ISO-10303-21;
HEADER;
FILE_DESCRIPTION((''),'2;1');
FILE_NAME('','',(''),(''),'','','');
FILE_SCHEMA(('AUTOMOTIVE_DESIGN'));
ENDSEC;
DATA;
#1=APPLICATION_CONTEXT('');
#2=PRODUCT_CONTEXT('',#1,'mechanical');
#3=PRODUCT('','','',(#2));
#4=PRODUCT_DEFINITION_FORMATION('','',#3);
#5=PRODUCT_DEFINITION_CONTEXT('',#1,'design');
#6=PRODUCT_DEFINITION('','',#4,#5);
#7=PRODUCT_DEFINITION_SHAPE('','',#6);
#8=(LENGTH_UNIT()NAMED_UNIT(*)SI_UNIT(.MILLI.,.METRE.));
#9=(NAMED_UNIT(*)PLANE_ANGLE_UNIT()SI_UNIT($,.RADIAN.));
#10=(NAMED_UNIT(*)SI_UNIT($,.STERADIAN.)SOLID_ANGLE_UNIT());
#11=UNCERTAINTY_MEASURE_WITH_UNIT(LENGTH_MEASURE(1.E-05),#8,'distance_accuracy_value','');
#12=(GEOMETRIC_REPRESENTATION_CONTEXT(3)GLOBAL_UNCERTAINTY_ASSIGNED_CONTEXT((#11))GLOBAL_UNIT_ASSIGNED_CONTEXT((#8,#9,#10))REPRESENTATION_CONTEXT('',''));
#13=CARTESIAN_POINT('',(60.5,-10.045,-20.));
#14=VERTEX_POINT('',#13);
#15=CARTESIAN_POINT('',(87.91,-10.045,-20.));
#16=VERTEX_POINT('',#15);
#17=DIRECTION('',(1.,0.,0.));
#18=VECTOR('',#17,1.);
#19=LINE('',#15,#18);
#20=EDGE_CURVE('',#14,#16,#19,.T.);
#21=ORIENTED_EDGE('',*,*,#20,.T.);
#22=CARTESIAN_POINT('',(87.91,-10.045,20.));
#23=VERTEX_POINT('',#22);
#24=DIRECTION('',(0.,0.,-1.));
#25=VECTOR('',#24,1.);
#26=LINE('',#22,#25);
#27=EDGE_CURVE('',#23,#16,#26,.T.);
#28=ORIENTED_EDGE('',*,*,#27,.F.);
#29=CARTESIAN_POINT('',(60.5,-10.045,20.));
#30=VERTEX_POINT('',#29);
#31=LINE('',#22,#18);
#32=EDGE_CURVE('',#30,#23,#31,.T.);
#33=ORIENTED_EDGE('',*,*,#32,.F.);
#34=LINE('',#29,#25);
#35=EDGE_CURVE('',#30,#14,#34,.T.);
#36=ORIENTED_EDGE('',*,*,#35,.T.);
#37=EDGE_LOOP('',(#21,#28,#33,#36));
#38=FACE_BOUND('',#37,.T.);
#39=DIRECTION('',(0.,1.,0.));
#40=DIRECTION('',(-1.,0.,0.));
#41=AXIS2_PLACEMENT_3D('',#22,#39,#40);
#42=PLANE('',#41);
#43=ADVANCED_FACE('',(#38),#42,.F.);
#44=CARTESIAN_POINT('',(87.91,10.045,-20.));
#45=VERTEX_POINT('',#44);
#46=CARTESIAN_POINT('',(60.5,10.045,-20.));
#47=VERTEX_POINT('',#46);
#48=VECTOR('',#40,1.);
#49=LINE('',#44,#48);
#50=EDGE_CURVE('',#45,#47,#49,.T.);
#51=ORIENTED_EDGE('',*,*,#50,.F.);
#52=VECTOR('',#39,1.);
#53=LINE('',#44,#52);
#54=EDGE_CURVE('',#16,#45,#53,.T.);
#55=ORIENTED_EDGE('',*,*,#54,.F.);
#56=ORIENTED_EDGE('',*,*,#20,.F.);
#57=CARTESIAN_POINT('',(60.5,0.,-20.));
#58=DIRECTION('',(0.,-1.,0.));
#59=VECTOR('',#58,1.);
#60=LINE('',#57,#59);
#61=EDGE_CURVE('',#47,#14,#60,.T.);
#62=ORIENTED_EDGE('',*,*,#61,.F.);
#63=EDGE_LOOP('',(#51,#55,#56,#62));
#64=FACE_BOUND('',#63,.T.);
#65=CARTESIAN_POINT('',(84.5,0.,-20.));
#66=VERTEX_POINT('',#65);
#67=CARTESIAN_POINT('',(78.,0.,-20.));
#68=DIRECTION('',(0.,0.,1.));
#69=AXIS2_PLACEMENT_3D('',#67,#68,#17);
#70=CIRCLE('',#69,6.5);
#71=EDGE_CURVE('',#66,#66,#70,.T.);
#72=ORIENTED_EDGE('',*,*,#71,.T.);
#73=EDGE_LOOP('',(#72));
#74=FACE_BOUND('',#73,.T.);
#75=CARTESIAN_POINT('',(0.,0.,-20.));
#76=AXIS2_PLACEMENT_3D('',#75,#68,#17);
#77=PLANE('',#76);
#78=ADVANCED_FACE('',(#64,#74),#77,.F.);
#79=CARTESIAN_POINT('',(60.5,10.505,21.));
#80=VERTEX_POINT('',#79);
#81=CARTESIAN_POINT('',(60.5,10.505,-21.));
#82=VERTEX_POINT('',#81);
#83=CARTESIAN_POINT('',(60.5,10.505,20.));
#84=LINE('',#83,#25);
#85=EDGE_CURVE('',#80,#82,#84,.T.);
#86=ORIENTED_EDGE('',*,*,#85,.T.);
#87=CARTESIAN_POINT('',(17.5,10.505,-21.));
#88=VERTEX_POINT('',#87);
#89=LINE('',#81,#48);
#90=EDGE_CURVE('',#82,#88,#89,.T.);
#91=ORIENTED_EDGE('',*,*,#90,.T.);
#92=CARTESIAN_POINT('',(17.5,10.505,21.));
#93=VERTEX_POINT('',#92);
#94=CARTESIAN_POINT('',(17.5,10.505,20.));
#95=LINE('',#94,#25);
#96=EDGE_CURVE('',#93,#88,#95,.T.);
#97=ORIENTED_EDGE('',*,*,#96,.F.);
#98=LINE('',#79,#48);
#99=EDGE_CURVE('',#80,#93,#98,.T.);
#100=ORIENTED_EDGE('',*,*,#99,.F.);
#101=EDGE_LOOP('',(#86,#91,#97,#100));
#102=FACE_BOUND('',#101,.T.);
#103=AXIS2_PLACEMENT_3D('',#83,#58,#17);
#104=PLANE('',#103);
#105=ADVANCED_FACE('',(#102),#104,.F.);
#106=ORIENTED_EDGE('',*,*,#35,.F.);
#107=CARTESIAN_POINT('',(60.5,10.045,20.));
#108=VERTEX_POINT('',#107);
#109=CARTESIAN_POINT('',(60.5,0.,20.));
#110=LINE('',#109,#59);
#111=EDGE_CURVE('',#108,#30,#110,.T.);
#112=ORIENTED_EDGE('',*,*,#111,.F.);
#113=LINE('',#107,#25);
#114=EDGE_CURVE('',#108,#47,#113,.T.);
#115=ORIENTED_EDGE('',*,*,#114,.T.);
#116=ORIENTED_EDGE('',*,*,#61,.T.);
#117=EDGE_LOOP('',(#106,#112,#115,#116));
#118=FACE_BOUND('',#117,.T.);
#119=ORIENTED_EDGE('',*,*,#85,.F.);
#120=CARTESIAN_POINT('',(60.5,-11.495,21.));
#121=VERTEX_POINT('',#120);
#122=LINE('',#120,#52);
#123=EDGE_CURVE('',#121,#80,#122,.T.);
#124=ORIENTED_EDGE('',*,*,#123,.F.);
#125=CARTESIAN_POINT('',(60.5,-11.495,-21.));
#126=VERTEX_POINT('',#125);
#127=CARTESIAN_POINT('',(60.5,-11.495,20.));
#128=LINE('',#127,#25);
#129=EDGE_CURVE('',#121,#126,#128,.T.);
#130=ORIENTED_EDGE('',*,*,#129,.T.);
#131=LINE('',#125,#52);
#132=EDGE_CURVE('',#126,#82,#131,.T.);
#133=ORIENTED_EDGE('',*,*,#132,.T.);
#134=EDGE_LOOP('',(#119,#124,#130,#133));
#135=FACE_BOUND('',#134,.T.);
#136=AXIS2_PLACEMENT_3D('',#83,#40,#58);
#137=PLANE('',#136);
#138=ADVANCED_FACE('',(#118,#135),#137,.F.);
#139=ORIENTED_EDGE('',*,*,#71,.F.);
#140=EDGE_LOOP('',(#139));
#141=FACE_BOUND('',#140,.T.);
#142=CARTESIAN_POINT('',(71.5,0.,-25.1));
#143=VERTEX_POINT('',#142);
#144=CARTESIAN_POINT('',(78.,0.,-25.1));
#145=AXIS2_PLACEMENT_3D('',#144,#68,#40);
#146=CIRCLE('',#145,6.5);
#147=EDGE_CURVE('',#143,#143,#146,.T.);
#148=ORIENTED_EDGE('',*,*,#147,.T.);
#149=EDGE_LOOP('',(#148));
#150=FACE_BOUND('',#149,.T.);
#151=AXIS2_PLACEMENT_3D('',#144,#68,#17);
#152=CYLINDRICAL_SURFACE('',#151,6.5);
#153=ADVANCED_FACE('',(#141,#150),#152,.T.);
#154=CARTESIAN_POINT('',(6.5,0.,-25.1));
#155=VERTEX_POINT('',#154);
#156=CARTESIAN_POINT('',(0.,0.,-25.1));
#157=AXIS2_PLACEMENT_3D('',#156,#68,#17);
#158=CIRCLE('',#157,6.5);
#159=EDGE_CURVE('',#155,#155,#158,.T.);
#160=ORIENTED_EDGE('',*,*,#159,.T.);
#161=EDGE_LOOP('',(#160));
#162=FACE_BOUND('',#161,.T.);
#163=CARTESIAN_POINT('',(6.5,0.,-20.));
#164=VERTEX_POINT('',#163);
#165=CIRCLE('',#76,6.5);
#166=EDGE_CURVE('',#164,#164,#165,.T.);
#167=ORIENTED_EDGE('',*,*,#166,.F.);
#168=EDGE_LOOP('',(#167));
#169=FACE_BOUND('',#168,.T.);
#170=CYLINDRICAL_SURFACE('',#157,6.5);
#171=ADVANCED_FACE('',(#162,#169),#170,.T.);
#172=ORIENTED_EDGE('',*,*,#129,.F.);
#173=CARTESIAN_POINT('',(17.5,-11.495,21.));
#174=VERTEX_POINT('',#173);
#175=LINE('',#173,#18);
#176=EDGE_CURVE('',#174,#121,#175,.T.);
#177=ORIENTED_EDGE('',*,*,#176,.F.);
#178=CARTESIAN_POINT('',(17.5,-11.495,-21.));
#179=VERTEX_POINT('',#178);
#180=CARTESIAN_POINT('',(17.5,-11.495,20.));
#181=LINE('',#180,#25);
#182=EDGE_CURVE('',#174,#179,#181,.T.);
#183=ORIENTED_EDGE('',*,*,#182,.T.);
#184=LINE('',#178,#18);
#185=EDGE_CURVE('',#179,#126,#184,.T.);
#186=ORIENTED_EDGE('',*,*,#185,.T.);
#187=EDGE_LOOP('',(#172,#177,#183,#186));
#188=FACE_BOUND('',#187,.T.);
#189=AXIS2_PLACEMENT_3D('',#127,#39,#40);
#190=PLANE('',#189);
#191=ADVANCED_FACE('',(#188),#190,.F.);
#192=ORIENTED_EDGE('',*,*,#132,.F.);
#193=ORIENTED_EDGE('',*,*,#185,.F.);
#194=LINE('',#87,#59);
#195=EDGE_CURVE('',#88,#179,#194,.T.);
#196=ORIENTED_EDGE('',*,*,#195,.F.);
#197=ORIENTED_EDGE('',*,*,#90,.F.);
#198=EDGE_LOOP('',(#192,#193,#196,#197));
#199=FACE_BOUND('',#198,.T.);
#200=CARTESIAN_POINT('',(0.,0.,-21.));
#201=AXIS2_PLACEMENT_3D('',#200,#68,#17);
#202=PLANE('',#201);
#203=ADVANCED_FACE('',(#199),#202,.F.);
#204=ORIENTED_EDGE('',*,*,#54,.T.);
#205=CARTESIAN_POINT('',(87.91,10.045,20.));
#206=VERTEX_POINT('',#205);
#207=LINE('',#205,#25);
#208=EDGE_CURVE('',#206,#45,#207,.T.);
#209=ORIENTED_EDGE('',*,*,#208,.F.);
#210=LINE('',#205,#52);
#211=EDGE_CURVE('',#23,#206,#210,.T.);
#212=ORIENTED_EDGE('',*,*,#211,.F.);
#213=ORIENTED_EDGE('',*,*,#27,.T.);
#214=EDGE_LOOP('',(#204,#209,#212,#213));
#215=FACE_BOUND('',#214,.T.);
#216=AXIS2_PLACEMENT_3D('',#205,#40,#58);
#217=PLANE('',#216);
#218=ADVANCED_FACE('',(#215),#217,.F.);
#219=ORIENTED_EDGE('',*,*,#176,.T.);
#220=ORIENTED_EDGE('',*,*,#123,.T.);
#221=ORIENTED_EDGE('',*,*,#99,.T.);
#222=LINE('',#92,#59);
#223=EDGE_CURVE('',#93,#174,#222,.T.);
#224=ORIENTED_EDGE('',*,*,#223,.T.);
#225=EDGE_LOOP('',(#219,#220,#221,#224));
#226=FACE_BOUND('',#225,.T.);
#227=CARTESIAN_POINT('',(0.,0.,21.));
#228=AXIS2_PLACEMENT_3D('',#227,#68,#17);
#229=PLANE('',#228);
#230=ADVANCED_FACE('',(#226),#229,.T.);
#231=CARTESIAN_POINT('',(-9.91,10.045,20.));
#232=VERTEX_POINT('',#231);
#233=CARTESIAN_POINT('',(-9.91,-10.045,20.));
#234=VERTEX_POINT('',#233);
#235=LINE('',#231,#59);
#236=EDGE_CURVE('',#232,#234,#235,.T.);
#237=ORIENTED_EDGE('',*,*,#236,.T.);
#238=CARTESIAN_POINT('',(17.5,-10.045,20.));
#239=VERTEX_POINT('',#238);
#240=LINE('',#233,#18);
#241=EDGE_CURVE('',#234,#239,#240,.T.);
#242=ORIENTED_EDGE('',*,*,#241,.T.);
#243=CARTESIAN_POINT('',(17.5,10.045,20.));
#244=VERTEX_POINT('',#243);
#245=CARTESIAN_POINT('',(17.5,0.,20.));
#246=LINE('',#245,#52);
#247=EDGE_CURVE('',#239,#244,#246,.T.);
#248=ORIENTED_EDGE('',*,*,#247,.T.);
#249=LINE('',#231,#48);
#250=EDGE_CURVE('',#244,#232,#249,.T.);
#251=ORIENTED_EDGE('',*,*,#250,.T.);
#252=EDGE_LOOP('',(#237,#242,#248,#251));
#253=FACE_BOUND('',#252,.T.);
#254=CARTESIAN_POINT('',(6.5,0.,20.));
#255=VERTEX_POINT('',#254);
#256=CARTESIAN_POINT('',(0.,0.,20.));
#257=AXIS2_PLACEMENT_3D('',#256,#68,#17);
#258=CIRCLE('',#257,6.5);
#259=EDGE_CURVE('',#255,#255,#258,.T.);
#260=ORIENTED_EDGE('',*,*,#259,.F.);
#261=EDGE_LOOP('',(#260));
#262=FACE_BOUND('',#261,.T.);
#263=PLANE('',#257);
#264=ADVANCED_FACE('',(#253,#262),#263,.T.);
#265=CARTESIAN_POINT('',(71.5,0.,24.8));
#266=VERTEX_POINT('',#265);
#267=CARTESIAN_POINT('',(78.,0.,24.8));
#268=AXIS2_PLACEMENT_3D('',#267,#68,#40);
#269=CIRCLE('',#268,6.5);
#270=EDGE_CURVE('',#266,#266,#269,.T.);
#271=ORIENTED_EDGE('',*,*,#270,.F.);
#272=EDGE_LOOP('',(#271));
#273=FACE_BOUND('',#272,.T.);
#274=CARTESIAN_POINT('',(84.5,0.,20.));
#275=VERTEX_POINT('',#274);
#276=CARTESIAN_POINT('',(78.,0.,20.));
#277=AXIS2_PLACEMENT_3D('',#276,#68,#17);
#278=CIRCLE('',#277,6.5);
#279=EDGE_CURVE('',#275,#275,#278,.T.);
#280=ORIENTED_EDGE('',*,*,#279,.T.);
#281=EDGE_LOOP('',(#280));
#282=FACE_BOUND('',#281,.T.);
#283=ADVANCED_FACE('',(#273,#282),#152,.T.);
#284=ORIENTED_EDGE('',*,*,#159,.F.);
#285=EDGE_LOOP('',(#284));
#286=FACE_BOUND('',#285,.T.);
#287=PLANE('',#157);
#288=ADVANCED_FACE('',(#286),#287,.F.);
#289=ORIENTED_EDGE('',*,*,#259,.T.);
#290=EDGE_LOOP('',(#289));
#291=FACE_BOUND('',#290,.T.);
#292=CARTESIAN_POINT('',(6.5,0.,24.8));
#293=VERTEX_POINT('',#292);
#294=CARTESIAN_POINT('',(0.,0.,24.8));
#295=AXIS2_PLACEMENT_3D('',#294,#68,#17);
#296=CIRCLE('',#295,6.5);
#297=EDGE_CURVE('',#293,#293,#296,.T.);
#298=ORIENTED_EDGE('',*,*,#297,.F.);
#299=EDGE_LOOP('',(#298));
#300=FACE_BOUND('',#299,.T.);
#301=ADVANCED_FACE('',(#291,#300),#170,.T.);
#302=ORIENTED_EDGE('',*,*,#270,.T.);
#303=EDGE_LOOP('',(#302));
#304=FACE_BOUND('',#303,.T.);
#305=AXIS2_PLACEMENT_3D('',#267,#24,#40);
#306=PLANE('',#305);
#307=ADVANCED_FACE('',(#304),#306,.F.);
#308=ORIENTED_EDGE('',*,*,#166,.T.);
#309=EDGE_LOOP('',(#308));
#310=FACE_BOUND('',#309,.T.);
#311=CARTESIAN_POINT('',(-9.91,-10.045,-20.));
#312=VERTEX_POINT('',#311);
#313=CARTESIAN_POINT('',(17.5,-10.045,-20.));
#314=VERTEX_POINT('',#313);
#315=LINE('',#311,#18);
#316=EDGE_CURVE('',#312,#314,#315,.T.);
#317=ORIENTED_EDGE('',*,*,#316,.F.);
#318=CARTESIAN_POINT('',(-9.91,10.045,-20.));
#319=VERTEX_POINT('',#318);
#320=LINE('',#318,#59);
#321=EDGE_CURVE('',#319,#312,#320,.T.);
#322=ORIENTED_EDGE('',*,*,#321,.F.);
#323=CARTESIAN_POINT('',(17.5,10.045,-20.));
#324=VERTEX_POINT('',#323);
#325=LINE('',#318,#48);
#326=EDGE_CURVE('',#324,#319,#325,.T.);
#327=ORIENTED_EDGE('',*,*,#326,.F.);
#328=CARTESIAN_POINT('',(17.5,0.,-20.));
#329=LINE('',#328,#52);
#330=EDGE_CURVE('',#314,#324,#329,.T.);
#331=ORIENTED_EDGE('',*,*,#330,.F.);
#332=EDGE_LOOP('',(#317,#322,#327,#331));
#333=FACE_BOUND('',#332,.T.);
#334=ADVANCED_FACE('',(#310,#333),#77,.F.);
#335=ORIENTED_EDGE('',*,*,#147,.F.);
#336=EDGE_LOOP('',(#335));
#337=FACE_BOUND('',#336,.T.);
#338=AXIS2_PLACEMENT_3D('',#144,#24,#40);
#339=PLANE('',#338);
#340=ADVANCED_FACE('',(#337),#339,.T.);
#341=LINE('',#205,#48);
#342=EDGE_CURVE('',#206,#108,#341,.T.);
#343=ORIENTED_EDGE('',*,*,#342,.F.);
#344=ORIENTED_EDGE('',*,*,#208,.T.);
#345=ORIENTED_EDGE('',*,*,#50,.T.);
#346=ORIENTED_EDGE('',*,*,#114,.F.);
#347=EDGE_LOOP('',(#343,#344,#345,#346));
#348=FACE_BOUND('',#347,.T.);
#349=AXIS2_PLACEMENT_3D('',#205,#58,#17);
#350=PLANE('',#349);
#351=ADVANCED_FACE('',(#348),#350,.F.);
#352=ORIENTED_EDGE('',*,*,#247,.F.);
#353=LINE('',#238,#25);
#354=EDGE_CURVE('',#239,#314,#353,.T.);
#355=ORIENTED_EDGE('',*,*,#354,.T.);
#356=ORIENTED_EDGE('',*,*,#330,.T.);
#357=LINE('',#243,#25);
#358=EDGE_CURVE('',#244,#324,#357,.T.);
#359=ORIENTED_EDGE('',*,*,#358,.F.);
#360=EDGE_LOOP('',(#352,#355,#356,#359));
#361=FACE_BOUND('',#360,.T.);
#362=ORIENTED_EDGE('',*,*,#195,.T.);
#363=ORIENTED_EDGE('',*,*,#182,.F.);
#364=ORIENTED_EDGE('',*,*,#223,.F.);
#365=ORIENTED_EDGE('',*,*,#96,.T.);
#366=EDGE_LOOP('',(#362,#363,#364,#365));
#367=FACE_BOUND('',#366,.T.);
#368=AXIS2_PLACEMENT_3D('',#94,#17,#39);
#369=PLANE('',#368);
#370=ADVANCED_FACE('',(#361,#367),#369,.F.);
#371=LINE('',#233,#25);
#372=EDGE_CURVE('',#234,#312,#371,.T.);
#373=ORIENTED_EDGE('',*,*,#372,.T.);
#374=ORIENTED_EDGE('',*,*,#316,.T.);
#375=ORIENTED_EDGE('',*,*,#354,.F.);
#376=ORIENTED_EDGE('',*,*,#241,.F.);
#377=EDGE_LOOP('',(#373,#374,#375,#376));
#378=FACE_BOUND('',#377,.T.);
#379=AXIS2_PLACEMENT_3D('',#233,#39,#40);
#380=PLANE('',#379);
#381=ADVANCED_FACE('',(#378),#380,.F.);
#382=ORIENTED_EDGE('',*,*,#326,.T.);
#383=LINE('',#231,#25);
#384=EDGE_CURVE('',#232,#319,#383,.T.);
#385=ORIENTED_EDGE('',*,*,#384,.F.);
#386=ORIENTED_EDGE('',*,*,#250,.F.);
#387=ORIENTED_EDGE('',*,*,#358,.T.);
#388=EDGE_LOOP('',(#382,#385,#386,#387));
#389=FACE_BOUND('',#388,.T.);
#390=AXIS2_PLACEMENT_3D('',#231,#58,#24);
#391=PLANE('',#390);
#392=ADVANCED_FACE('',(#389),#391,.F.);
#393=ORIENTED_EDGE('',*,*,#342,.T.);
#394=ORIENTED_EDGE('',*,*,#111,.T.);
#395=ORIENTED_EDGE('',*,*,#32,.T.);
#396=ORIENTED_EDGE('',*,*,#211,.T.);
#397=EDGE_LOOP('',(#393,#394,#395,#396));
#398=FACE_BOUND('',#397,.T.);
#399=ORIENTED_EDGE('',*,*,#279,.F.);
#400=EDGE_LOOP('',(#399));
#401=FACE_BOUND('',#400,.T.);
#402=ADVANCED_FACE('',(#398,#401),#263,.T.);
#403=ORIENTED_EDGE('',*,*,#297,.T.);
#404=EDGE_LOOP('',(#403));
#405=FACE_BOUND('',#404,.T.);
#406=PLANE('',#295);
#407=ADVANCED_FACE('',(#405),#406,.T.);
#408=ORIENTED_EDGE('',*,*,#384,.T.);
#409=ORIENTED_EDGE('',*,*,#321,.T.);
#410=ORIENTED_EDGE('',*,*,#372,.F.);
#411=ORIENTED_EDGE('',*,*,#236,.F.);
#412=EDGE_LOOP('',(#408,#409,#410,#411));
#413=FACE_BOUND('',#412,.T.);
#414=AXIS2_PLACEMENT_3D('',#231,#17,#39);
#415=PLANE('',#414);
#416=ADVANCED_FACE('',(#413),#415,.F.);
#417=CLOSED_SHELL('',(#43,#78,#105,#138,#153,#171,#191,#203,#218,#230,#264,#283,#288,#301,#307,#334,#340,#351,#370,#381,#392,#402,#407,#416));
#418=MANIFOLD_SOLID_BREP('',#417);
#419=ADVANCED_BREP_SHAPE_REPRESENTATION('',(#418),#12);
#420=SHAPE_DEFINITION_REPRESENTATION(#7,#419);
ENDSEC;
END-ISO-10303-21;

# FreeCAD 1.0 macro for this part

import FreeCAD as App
import Part
import Sketcher
from FreeCAD import Vector
Q = App.Units.Quantity

doc = App.newDocument("Part")
body = doc.addObject("PartDesign::Body", "Body")

# Sketch on XY plane
sketch1 = body.newObject("Sketcher::SketchObject", "Sketch")
sketch1.AttachmentSupport = (doc.getObject("XY_Plane"), [""])
sketch1.MapMode = "FlatFace"
sketch1.addGeometry([
    Part.LineSegment(Vector(17.5, -10.045, 0), Vector(17.5, -11.495, 0)),  # 0
    Part.LineSegment(Vector(17.5, -11.495, 0), Vector(60.5, -11.495, 0)),  # 1
    Part.LineSegment(Vector(60.5, -11.495, 0), Vector(60.5, -10.045, 0)),  # 2
    Part.LineSegment(Vector(60.5, -10.045, 0), Vector(87.91, -10.045, 0)),  # 3
    Part.LineSegment(Vector(87.91, -10.045, 0), Vector(87.91, 10.045, 0)),  # 4
    Part.LineSegment(Vector(87.91, 10.045, 0), Vector(60.5, 10.045, 0)),  # 5
    Part.LineSegment(Vector(60.5, 10.045, 0), Vector(60.5, 10.505, 0)),  # 6
    Part.LineSegment(Vector(60.5, 10.505, 0), Vector(17.5, 10.505, 0)),  # 7
    Part.LineSegment(Vector(17.5, 10.505, 0), Vector(17.5, 10.045, 0)),  # 8
    Part.LineSegment(Vector(17.5, 10.045, 0), Vector(-9.91, 10.045, 0)),  # 9
    Part.LineSegment(Vector(-9.91, 10.045, 0), Vector(-9.91, -10.045, 0)),  # 10
    Part.LineSegment(Vector(-9.91, -10.045, 0), Vector(17.5, -10.045, 0)),  # 11
], False)
sketch1.addConstraint([
    Sketcher.Constraint("Coincident", 0, 2, 1, 1),
    Sketcher.Constraint("Coincident", 1, 2, 2, 1),
    Sketcher.Constraint("Coincident", 2, 2, 3, 1),
    Sketcher.Constraint("Coincident", 3, 2, 4, 1),
    Sketcher.Constraint("Coincident", 4, 2, 5, 1),
    Sketcher.Constraint("Coincident", 5, 2, 6, 1),
    Sketcher.Constraint("Coincident", 6, 2, 7, 1),
    Sketcher.Constraint("Coincident", 7, 2, 8, 1),
    Sketcher.Constraint("Coincident", 8, 2, 9, 1),
    Sketcher.Constraint("Coincident", 9, 2, 10, 1),
    Sketcher.Constraint("Coincident", 10, 2, 11, 1),
    Sketcher.Constraint("Coincident", 11, 2, 0, 1),
    Sketcher.Constraint("Vertical", 0),
    Sketcher.Constraint("Horizontal", 1),
    Sketcher.Constraint("Vertical", 2),
    Sketcher.Constraint("Horizontal", 3),
    Sketcher.Constraint("Vertical", 4),
    Sketcher.Constraint("Horizontal", 5),
    Sketcher.Constraint("Vertical", 6),
    Sketcher.Constraint("Horizontal", 7),
    Sketcher.Constraint("Vertical", 8),
    Sketcher.Constraint("Horizontal", 9),
    Sketcher.Constraint("Vertical", 10),
    Sketcher.Constraint("Horizontal", 11),
    Sketcher.Constraint("Symmetric", 2, 2, 5, 2, -1),
    Sketcher.Constraint("Symmetric", 8, 2, 11, 2, -1),
    Sketcher.Constraint("Horizontal", 5, 2, 8, 2),
    Sketcher.Constraint("Equal", 5, 9),
    Sketcher.Constraint("DistanceX", 1, 1, 1, 2, Q("43 mm")),
    Sketcher.Constraint("DistanceY", 1, 2, 6, 2, Q("22 mm")),
    Sketcher.Constraint("DistanceX", 3, 1, 3, 2, Q("27.41 mm")),
    Sketcher.Constraint("DistanceY", 0, 2, 0, 1, Q("1.45 mm")),
    Sketcher.Constraint("DistanceY", 4, 1, 4, 2, Q("20.09 mm")),
    Sketcher.Constraint("DistanceX", -1, 1, 0, 2, Q("17.5 mm")),
])
pad1 = body.newObject("PartDesign::Pad", "Pad")
pad1.Profile = sketch1
pad1.Length = 40
pad1.Midplane = True

# Sketch on XY plane
sketch2 = body.newObject("Sketcher::SketchObject", "Sketch001")
sketch2.AttachmentSupport = (doc.getObject("XY_Plane"), [""])
sketch2.MapMode = "FlatFace"
sketch2.addGeometry([
    Part.LineSegment(Vector(17.5, 10.505, 0), Vector(17.5, -11.495, 0)),
    Part.LineSegment(Vector(17.5, -11.495, 0), Vector(60.5, -11.495, 0)),
    Part.LineSegment(Vector(60.5, -11.495, 0), Vector(60.5, 10.505, 0)),
    Part.LineSegment(Vector(60.5, 10.505, 0), Vector(17.5, 10.505, 0)),
], False)
sketch2.addConstraint([
    Sketcher.Constraint("Coincident", 0, 2, 1, 1),
    Sketcher.Constraint("Coincident", 1, 2, 2, 1),
    Sketcher.Constraint("Coincident", 2, 2, 3, 1),
    Sketcher.Constraint("Coincident", 3, 2, 0, 1),
    Sketcher.Constraint("Vertical", 0),
    Sketcher.Constraint("Horizontal", 1),
    Sketcher.Constraint("Vertical", 2),
    Sketcher.Constraint("Horizontal", 3),
    Sketcher.Constraint("DistanceX", 1, 1, 1, 2, Q("43 mm")),
    Sketcher.Constraint("DistanceY", 0, 2, 0, 1, Q("22 mm")),
    Sketcher.Constraint("DistanceX", -1, 1, 0, 2, Q("17.5 mm")),
    Sketcher.Constraint("DistanceY", 0, 2, -1, 1, Q("11.495 mm")),
])
pad2 = body.newObject("PartDesign::Pad", "Pad001")
pad2.Profile = sketch2
pad2.Length = 42
pad2.Midplane = True

# Sketch on XY plane
sketch3 = body.newObject("Sketcher::SketchObject", "Sketch002")
sketch3.AttachmentSupport = (doc.getObject("XY_Plane"), [""])
sketch3.MapMode = "FlatFace"
sketch3.addGeometry([
    Part.Circle(Vector(0, 0, 0), Vector(0, 0, 1), 6.5),
    Part.Circle(Vector(78, 0, 0), Vector(0, 0, 1), 6.5),
], False)
sketch3.addConstraint([
    Sketcher.Constraint("Coincident", 0, 3, -1, 1),
    Sketcher.Constraint("Equal", 0, 1),
    Sketcher.Constraint("PointOnObject", 1, 3, -1),
    Sketcher.Constraint("Diameter", 0, Q("13 mm")),
    Sketcher.Constraint("DistanceX", -1, 1, 1, 3, Q("78 mm")),
])
pad3 = body.newObject("PartDesign::Pad", "Pad002")
pad3.Profile = sketch3
pad3.Type = "TwoLengths"
pad3.Length = 24.8
pad3.Length2 = 25.1

doc.recompute()
